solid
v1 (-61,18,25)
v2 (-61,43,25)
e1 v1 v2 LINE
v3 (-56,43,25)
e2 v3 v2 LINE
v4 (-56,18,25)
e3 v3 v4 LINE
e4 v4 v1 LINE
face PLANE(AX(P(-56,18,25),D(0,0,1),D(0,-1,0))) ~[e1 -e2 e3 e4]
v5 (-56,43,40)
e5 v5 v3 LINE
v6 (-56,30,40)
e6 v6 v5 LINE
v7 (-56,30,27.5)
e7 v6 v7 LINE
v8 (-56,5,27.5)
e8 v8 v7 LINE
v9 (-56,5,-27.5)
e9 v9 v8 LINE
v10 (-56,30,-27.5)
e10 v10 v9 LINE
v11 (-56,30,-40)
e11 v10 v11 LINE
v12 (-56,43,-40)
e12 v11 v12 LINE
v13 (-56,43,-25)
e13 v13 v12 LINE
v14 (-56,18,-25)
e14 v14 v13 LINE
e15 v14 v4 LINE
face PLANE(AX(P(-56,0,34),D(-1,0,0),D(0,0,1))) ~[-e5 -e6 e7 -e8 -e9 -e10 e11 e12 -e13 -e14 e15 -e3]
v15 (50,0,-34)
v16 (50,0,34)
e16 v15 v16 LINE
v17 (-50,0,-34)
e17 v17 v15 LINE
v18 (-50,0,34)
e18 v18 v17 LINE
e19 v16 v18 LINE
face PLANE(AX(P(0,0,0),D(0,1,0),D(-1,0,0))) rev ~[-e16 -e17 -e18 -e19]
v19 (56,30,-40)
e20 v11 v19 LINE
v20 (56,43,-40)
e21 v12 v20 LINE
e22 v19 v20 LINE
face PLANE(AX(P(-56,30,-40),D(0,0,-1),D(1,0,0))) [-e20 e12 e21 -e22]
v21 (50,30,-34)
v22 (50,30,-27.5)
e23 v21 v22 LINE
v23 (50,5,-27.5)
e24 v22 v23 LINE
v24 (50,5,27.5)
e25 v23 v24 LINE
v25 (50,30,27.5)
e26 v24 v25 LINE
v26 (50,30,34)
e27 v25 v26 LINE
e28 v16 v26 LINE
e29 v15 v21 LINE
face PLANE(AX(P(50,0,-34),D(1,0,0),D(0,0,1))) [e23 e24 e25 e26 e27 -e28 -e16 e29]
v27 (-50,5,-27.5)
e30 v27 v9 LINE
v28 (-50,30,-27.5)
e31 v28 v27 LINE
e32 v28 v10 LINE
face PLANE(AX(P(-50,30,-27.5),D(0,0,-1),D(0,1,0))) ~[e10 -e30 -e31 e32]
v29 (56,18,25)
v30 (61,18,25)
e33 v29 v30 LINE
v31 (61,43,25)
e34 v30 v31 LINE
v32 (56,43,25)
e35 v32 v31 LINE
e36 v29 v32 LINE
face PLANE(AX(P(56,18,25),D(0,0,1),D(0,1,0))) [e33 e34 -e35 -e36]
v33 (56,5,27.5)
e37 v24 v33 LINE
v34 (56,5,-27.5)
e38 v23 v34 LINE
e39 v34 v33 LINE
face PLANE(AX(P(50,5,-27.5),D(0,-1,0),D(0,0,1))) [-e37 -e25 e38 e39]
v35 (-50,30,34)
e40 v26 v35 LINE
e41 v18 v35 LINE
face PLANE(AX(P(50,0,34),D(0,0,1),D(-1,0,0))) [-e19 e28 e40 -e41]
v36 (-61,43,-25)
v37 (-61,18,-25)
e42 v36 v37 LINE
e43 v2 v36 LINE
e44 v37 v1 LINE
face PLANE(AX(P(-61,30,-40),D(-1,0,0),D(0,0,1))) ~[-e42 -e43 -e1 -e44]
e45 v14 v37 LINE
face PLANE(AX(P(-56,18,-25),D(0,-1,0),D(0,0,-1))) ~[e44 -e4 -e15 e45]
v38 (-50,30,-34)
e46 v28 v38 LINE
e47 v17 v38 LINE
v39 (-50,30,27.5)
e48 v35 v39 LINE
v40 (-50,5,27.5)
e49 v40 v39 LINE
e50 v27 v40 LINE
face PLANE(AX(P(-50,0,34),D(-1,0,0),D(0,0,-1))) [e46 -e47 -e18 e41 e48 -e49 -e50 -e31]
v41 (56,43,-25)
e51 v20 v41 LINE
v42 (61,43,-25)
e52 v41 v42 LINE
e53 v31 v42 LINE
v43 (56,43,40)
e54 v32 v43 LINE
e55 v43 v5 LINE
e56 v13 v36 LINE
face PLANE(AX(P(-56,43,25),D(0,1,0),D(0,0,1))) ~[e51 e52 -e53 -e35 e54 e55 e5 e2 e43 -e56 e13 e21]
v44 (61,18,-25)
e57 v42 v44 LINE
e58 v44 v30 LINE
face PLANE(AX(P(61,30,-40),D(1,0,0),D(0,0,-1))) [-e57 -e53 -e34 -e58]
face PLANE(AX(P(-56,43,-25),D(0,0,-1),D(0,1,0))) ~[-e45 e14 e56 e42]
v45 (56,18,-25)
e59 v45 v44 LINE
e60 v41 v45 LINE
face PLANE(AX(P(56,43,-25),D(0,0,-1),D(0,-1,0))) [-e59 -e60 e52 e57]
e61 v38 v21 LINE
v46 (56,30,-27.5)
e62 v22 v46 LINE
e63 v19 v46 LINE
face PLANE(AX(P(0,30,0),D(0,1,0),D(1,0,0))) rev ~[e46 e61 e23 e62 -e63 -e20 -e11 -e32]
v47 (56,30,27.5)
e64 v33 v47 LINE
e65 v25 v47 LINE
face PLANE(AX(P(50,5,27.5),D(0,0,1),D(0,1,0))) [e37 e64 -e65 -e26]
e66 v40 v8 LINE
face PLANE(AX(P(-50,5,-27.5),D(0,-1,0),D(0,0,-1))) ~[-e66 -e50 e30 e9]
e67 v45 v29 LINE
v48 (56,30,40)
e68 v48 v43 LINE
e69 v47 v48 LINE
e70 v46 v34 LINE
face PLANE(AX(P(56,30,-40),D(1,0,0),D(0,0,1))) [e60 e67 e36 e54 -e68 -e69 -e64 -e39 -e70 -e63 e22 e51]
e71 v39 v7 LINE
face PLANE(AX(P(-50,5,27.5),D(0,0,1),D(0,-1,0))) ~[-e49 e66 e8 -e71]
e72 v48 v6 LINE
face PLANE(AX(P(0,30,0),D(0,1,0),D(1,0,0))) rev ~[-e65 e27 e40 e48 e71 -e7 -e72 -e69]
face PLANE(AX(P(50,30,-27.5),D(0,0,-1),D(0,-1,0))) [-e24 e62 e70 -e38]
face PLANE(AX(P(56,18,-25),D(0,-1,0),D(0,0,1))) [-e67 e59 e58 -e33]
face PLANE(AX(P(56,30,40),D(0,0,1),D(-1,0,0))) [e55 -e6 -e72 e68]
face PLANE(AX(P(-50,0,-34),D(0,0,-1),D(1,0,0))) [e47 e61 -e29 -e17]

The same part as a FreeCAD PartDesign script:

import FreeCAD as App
import Part
import Sketcher

V = App.Vector
Q = App.Units.Quantity


def add_polygon(sketch, points):
    """Adds a closed chain of lines whose ends are joined by coincident constraints."""
    first, n = sketch.GeometryCount, len(points)
    for a, b in zip(points, points[1:] + points[:1]):
        sketch.addGeometry(Part.LineSegment(App.Vector(*a, 0), App.Vector(*b, 0)), False)
    for i in range(n):
        sketch.addConstraint(Sketcher.Constraint("Coincident", first + i, 2, first + (i + 1) % n, 1))

doc = App.newDocument("Part")
params = doc.addObject("Spreadsheet::Sheet", "Params")
for row, (alias, value) in enumerate([
    ("sketch1_width", "100 mm"),
    ("sketch1_height", "68 mm"),
    ("pad1_length", "30 mm"),
    ("sketch2_width", "112 mm"),
    ("sketch2_height", "80 mm"),
    ("pad2_length", "13 mm"),
    ("sketch3_width", "25 mm"),
    ("sketch3_height", "55 mm"),
    ("pad3_length", "6 mm"),
    ("sketch4_width", "25 mm"),
    ("sketch4_height", "50 mm"),
    ("pad4_length", "5 mm"),
], start=1):
    params.set(f"A{row}", alias)
    params.set(f"B{row}", "=" + value)
    params.setAlias(f"B{row}", alias)

body = doc.addObject("PartDesign::Body", "Body")

# Sketch on XZ plane
sketch1 = body.newObject("Sketcher::SketchObject", "Sketch")
sketch1.AttachmentSupport = (doc.getObject("XZ_Plane"), [""])
sketch1.MapMode = "FlatFace"
add_polygon(sketch1, [(-50, 34), (50, 34), (50, -34), (-50, -34)])  # lines 0-3
sketch1.addConstraint([
    Sketcher.Constraint("Horizontal", 0),
    Sketcher.Constraint("Vertical", 1),
    Sketcher.Constraint("Horizontal", 2),
    Sketcher.Constraint("Vertical", 3),
    Sketcher.Constraint("Symmetric", 0, 2, 2, 2, -1, 1),
    Sketcher.Constraint("DistanceX", 0, 1, 0, 2, Q("100 mm")),
    Sketcher.Constraint("DistanceY", 1, 2, 1, 1, Q("68 mm")),
])
sketch1.setExpression("Constraints[9]", "Params.sketch1_width")
sketch1.setExpression("Constraints[10]", "Params.sketch1_height")
pad1 = body.newObject("PartDesign::Pad", "Pad")
pad1.Profile = sketch1
pad1.setExpression("Length", "Params.pad1_length")
pad1.Reversed = True

# Sketch on XZ plane
sketch2 = body.newObject("Sketcher::SketchObject", "Sketch001")
sketch2.AttachmentSupport = (doc.getObject("XZ_Plane"), [""])
sketch2.MapMode = "FlatFace"
sketch2.AttachmentOffset = App.Placement(V(0, 0, -30), App.Rotation())
add_polygon(sketch2, [(56, -40), (-56, -40), (-56, 40), (56, 40)])  # lines 0-3
sketch2.addConstraint([
    Sketcher.Constraint("Horizontal", 0),
    Sketcher.Constraint("Vertical", 1),
    Sketcher.Constraint("Horizontal", 2),
    Sketcher.Constraint("Vertical", 3),
    Sketcher.Constraint("Symmetric", 0, 2, 2, 2, -1, 1),
    Sketcher.Constraint("DistanceX", 0, 2, 0, 1, Q("112 mm")),
    Sketcher.Constraint("DistanceY", 1, 1, 1, 2, Q("80 mm")),
])
sketch2.setExpression("Constraints[9]", "Params.sketch2_width")
sketch2.setExpression("Constraints[10]", "Params.sketch2_height")
pad2 = body.newObject("PartDesign::Pad", "Pad001")
pad2.Profile = sketch2
pad2.setExpression("Length", "Params.pad2_length")
pad2.Reversed = True

# Sketch on YZ plane
sketch3 = body.newObject("Sketcher::SketchObject", "Sketch002")
sketch3.AttachmentSupport = (doc.getObject("YZ_Plane"), [""])
sketch3.MapMode = "FlatFace"
sketch3.AttachmentOffset = App.Placement(V(0, 0, 50), App.Rotation())
add_polygon(sketch3, [(30, -28), (30, 28), (5, 28), (5, -28)])  # lines 0-3
sketch3.addConstraint([
    Sketcher.Constraint("Vertical", 0),
    Sketcher.Constraint("Horizontal", 1),
    Sketcher.Constraint("Vertical", 2),
    Sketcher.Constraint("Horizontal", 3),
    Sketcher.Constraint("DistanceX", 1, 2, 1, 1, Q("25 mm")),
    Sketcher.Constraint("DistanceY", 0, 1, 0, 2, Q("55 mm")),
    Sketcher.Constraint("DistanceY", -1, 1, 0, 2, Q("27.5 mm")),
    Sketcher.Constraint("DistanceX", -1, 1, 0, 2, Q("30 mm")),
])
sketch3.setExpression("Constraints[8]", "Params.sketch3_width")
sketch3.setExpression("Constraints[9]", "Params.sketch3_height")
pad3 = body.newObject("PartDesign::Pad", "Pad002")
pad3.Profile = sketch3
pad3.setExpression("Length", "Params.pad3_length")

# Sketch on YZ plane
sketch4 = body.newObject("Sketcher::SketchObject", "Sketch003")
sketch4.AttachmentSupport = (doc.getObject("YZ_Plane"), [""])
sketch4.MapMode = "FlatFace"
sketch4.AttachmentOffset = App.Placement(V(0, 0, 56), App.Rotation())
add_polygon(sketch4, [(43, -25), (43, 25), (18, 25), (18, -25)])  # lines 0-3
sketch4.addConstraint([
    Sketcher.Constraint("Vertical", 0),
    Sketcher.Constraint("Horizontal", 1),
    Sketcher.Constraint("Vertical", 2),
    Sketcher.Constraint("Horizontal", 3),
    Sketcher.Constraint("DistanceX", 1, 2, 1, 1, Q("25 mm")),
    Sketcher.Constraint("DistanceY", 0, 1, 0, 2, Q("50 mm")),
    Sketcher.Constraint("DistanceY", -1, 1, 0, 2, Q("25 mm")),
    Sketcher.Constraint("DistanceX", -1, 1, 0, 2, Q("43 mm")),
])
sketch4.setExpression("Constraints[8]", "Params.sketch4_width")
sketch4.setExpression("Constraints[9]", "Params.sketch4_height")
pad4 = body.newObject("PartDesign::Pad", "Pad003")
pad4.Profile = sketch4
pad4.setExpression("Length", "Params.pad4_length")
doc.recompute()

mirrored = body.newObject("PartDesign::Mirrored", "Mirrored")
mirrored.Originals = [pad4, pad3]
mirrored.MirrorPlane = (doc.getObject("YZ_Plane"), [""])
body.Tip = mirrored

doc.recompute()
